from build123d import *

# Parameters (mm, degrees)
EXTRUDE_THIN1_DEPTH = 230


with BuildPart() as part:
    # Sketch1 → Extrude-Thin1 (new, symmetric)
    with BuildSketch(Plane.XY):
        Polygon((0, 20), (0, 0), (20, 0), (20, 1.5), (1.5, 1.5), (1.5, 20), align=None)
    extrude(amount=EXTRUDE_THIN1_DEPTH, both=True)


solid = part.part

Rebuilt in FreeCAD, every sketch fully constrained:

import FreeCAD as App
import Part
import Sketcher


def add_polygon(sketch, points):
    """Adds a closed chain of lines whose ends are joined by coincident constraints."""
    first, n = sketch.GeometryCount, len(points)
    for a, b in zip(points, points[1:] + points[:1]):
        sketch.addGeometry(Part.LineSegment(App.Vector(*a, 0), App.Vector(*b, 0)), False)
    for i in range(n):
        sketch.addConstraint(Sketcher.Constraint("Coincident", first + i, 2, first + (i + 1) % n, 1))

doc = App.newDocument("Part")
body = doc.addObject("PartDesign::Body", "Body")

# Sketch on XY plane
sketch1 = body.newObject("Sketcher::SketchObject", "Sketch")
sketch1.AttachmentSupport = (doc.getObject("XY_Plane"), [""])
sketch1.MapMode = "FlatFace"
add_polygon(sketch1, [(0, 20), (0, 0), (20, 0), (20, 1.5), (1.5, 1.5), (1.5, 20)])  # lines 0-5
sketch1.addConstraint(Sketcher.Constraint("Vertical", 0))
sketch1.addConstraint(Sketcher.Constraint("Horizontal", 1))
sketch1.addConstraint(Sketcher.Constraint("Vertical", 2))
sketch1.addConstraint(Sketcher.Constraint("Horizontal", 3))
sketch1.addConstraint(Sketcher.Constraint("Vertical", 4))
sketch1.addConstraint(Sketcher.Constraint("Horizontal", 5))
sketch1.addConstraint(Sketcher.Constraint("Coincident", 0, 2, -1, 1))
sketch1.addConstraint(Sketcher.Constraint("Equal", 1, 0))
sketch1.addConstraint(Sketcher.Constraint("Equal", 5, 2))
sketch1.addConstraint(Sketcher.Constraint("DistanceX", 1, 1, 1, 2, 20.0))
sketch1.addConstraint(Sketcher.Constraint("DistanceX", 3, 2, 3, 1, 18.5))
pad1 = body.newObject("PartDesign::Pad", "Pad")
pad1.Profile = sketch1
pad1.Length = 460
pad1.Midplane = True

doc.recompute()
